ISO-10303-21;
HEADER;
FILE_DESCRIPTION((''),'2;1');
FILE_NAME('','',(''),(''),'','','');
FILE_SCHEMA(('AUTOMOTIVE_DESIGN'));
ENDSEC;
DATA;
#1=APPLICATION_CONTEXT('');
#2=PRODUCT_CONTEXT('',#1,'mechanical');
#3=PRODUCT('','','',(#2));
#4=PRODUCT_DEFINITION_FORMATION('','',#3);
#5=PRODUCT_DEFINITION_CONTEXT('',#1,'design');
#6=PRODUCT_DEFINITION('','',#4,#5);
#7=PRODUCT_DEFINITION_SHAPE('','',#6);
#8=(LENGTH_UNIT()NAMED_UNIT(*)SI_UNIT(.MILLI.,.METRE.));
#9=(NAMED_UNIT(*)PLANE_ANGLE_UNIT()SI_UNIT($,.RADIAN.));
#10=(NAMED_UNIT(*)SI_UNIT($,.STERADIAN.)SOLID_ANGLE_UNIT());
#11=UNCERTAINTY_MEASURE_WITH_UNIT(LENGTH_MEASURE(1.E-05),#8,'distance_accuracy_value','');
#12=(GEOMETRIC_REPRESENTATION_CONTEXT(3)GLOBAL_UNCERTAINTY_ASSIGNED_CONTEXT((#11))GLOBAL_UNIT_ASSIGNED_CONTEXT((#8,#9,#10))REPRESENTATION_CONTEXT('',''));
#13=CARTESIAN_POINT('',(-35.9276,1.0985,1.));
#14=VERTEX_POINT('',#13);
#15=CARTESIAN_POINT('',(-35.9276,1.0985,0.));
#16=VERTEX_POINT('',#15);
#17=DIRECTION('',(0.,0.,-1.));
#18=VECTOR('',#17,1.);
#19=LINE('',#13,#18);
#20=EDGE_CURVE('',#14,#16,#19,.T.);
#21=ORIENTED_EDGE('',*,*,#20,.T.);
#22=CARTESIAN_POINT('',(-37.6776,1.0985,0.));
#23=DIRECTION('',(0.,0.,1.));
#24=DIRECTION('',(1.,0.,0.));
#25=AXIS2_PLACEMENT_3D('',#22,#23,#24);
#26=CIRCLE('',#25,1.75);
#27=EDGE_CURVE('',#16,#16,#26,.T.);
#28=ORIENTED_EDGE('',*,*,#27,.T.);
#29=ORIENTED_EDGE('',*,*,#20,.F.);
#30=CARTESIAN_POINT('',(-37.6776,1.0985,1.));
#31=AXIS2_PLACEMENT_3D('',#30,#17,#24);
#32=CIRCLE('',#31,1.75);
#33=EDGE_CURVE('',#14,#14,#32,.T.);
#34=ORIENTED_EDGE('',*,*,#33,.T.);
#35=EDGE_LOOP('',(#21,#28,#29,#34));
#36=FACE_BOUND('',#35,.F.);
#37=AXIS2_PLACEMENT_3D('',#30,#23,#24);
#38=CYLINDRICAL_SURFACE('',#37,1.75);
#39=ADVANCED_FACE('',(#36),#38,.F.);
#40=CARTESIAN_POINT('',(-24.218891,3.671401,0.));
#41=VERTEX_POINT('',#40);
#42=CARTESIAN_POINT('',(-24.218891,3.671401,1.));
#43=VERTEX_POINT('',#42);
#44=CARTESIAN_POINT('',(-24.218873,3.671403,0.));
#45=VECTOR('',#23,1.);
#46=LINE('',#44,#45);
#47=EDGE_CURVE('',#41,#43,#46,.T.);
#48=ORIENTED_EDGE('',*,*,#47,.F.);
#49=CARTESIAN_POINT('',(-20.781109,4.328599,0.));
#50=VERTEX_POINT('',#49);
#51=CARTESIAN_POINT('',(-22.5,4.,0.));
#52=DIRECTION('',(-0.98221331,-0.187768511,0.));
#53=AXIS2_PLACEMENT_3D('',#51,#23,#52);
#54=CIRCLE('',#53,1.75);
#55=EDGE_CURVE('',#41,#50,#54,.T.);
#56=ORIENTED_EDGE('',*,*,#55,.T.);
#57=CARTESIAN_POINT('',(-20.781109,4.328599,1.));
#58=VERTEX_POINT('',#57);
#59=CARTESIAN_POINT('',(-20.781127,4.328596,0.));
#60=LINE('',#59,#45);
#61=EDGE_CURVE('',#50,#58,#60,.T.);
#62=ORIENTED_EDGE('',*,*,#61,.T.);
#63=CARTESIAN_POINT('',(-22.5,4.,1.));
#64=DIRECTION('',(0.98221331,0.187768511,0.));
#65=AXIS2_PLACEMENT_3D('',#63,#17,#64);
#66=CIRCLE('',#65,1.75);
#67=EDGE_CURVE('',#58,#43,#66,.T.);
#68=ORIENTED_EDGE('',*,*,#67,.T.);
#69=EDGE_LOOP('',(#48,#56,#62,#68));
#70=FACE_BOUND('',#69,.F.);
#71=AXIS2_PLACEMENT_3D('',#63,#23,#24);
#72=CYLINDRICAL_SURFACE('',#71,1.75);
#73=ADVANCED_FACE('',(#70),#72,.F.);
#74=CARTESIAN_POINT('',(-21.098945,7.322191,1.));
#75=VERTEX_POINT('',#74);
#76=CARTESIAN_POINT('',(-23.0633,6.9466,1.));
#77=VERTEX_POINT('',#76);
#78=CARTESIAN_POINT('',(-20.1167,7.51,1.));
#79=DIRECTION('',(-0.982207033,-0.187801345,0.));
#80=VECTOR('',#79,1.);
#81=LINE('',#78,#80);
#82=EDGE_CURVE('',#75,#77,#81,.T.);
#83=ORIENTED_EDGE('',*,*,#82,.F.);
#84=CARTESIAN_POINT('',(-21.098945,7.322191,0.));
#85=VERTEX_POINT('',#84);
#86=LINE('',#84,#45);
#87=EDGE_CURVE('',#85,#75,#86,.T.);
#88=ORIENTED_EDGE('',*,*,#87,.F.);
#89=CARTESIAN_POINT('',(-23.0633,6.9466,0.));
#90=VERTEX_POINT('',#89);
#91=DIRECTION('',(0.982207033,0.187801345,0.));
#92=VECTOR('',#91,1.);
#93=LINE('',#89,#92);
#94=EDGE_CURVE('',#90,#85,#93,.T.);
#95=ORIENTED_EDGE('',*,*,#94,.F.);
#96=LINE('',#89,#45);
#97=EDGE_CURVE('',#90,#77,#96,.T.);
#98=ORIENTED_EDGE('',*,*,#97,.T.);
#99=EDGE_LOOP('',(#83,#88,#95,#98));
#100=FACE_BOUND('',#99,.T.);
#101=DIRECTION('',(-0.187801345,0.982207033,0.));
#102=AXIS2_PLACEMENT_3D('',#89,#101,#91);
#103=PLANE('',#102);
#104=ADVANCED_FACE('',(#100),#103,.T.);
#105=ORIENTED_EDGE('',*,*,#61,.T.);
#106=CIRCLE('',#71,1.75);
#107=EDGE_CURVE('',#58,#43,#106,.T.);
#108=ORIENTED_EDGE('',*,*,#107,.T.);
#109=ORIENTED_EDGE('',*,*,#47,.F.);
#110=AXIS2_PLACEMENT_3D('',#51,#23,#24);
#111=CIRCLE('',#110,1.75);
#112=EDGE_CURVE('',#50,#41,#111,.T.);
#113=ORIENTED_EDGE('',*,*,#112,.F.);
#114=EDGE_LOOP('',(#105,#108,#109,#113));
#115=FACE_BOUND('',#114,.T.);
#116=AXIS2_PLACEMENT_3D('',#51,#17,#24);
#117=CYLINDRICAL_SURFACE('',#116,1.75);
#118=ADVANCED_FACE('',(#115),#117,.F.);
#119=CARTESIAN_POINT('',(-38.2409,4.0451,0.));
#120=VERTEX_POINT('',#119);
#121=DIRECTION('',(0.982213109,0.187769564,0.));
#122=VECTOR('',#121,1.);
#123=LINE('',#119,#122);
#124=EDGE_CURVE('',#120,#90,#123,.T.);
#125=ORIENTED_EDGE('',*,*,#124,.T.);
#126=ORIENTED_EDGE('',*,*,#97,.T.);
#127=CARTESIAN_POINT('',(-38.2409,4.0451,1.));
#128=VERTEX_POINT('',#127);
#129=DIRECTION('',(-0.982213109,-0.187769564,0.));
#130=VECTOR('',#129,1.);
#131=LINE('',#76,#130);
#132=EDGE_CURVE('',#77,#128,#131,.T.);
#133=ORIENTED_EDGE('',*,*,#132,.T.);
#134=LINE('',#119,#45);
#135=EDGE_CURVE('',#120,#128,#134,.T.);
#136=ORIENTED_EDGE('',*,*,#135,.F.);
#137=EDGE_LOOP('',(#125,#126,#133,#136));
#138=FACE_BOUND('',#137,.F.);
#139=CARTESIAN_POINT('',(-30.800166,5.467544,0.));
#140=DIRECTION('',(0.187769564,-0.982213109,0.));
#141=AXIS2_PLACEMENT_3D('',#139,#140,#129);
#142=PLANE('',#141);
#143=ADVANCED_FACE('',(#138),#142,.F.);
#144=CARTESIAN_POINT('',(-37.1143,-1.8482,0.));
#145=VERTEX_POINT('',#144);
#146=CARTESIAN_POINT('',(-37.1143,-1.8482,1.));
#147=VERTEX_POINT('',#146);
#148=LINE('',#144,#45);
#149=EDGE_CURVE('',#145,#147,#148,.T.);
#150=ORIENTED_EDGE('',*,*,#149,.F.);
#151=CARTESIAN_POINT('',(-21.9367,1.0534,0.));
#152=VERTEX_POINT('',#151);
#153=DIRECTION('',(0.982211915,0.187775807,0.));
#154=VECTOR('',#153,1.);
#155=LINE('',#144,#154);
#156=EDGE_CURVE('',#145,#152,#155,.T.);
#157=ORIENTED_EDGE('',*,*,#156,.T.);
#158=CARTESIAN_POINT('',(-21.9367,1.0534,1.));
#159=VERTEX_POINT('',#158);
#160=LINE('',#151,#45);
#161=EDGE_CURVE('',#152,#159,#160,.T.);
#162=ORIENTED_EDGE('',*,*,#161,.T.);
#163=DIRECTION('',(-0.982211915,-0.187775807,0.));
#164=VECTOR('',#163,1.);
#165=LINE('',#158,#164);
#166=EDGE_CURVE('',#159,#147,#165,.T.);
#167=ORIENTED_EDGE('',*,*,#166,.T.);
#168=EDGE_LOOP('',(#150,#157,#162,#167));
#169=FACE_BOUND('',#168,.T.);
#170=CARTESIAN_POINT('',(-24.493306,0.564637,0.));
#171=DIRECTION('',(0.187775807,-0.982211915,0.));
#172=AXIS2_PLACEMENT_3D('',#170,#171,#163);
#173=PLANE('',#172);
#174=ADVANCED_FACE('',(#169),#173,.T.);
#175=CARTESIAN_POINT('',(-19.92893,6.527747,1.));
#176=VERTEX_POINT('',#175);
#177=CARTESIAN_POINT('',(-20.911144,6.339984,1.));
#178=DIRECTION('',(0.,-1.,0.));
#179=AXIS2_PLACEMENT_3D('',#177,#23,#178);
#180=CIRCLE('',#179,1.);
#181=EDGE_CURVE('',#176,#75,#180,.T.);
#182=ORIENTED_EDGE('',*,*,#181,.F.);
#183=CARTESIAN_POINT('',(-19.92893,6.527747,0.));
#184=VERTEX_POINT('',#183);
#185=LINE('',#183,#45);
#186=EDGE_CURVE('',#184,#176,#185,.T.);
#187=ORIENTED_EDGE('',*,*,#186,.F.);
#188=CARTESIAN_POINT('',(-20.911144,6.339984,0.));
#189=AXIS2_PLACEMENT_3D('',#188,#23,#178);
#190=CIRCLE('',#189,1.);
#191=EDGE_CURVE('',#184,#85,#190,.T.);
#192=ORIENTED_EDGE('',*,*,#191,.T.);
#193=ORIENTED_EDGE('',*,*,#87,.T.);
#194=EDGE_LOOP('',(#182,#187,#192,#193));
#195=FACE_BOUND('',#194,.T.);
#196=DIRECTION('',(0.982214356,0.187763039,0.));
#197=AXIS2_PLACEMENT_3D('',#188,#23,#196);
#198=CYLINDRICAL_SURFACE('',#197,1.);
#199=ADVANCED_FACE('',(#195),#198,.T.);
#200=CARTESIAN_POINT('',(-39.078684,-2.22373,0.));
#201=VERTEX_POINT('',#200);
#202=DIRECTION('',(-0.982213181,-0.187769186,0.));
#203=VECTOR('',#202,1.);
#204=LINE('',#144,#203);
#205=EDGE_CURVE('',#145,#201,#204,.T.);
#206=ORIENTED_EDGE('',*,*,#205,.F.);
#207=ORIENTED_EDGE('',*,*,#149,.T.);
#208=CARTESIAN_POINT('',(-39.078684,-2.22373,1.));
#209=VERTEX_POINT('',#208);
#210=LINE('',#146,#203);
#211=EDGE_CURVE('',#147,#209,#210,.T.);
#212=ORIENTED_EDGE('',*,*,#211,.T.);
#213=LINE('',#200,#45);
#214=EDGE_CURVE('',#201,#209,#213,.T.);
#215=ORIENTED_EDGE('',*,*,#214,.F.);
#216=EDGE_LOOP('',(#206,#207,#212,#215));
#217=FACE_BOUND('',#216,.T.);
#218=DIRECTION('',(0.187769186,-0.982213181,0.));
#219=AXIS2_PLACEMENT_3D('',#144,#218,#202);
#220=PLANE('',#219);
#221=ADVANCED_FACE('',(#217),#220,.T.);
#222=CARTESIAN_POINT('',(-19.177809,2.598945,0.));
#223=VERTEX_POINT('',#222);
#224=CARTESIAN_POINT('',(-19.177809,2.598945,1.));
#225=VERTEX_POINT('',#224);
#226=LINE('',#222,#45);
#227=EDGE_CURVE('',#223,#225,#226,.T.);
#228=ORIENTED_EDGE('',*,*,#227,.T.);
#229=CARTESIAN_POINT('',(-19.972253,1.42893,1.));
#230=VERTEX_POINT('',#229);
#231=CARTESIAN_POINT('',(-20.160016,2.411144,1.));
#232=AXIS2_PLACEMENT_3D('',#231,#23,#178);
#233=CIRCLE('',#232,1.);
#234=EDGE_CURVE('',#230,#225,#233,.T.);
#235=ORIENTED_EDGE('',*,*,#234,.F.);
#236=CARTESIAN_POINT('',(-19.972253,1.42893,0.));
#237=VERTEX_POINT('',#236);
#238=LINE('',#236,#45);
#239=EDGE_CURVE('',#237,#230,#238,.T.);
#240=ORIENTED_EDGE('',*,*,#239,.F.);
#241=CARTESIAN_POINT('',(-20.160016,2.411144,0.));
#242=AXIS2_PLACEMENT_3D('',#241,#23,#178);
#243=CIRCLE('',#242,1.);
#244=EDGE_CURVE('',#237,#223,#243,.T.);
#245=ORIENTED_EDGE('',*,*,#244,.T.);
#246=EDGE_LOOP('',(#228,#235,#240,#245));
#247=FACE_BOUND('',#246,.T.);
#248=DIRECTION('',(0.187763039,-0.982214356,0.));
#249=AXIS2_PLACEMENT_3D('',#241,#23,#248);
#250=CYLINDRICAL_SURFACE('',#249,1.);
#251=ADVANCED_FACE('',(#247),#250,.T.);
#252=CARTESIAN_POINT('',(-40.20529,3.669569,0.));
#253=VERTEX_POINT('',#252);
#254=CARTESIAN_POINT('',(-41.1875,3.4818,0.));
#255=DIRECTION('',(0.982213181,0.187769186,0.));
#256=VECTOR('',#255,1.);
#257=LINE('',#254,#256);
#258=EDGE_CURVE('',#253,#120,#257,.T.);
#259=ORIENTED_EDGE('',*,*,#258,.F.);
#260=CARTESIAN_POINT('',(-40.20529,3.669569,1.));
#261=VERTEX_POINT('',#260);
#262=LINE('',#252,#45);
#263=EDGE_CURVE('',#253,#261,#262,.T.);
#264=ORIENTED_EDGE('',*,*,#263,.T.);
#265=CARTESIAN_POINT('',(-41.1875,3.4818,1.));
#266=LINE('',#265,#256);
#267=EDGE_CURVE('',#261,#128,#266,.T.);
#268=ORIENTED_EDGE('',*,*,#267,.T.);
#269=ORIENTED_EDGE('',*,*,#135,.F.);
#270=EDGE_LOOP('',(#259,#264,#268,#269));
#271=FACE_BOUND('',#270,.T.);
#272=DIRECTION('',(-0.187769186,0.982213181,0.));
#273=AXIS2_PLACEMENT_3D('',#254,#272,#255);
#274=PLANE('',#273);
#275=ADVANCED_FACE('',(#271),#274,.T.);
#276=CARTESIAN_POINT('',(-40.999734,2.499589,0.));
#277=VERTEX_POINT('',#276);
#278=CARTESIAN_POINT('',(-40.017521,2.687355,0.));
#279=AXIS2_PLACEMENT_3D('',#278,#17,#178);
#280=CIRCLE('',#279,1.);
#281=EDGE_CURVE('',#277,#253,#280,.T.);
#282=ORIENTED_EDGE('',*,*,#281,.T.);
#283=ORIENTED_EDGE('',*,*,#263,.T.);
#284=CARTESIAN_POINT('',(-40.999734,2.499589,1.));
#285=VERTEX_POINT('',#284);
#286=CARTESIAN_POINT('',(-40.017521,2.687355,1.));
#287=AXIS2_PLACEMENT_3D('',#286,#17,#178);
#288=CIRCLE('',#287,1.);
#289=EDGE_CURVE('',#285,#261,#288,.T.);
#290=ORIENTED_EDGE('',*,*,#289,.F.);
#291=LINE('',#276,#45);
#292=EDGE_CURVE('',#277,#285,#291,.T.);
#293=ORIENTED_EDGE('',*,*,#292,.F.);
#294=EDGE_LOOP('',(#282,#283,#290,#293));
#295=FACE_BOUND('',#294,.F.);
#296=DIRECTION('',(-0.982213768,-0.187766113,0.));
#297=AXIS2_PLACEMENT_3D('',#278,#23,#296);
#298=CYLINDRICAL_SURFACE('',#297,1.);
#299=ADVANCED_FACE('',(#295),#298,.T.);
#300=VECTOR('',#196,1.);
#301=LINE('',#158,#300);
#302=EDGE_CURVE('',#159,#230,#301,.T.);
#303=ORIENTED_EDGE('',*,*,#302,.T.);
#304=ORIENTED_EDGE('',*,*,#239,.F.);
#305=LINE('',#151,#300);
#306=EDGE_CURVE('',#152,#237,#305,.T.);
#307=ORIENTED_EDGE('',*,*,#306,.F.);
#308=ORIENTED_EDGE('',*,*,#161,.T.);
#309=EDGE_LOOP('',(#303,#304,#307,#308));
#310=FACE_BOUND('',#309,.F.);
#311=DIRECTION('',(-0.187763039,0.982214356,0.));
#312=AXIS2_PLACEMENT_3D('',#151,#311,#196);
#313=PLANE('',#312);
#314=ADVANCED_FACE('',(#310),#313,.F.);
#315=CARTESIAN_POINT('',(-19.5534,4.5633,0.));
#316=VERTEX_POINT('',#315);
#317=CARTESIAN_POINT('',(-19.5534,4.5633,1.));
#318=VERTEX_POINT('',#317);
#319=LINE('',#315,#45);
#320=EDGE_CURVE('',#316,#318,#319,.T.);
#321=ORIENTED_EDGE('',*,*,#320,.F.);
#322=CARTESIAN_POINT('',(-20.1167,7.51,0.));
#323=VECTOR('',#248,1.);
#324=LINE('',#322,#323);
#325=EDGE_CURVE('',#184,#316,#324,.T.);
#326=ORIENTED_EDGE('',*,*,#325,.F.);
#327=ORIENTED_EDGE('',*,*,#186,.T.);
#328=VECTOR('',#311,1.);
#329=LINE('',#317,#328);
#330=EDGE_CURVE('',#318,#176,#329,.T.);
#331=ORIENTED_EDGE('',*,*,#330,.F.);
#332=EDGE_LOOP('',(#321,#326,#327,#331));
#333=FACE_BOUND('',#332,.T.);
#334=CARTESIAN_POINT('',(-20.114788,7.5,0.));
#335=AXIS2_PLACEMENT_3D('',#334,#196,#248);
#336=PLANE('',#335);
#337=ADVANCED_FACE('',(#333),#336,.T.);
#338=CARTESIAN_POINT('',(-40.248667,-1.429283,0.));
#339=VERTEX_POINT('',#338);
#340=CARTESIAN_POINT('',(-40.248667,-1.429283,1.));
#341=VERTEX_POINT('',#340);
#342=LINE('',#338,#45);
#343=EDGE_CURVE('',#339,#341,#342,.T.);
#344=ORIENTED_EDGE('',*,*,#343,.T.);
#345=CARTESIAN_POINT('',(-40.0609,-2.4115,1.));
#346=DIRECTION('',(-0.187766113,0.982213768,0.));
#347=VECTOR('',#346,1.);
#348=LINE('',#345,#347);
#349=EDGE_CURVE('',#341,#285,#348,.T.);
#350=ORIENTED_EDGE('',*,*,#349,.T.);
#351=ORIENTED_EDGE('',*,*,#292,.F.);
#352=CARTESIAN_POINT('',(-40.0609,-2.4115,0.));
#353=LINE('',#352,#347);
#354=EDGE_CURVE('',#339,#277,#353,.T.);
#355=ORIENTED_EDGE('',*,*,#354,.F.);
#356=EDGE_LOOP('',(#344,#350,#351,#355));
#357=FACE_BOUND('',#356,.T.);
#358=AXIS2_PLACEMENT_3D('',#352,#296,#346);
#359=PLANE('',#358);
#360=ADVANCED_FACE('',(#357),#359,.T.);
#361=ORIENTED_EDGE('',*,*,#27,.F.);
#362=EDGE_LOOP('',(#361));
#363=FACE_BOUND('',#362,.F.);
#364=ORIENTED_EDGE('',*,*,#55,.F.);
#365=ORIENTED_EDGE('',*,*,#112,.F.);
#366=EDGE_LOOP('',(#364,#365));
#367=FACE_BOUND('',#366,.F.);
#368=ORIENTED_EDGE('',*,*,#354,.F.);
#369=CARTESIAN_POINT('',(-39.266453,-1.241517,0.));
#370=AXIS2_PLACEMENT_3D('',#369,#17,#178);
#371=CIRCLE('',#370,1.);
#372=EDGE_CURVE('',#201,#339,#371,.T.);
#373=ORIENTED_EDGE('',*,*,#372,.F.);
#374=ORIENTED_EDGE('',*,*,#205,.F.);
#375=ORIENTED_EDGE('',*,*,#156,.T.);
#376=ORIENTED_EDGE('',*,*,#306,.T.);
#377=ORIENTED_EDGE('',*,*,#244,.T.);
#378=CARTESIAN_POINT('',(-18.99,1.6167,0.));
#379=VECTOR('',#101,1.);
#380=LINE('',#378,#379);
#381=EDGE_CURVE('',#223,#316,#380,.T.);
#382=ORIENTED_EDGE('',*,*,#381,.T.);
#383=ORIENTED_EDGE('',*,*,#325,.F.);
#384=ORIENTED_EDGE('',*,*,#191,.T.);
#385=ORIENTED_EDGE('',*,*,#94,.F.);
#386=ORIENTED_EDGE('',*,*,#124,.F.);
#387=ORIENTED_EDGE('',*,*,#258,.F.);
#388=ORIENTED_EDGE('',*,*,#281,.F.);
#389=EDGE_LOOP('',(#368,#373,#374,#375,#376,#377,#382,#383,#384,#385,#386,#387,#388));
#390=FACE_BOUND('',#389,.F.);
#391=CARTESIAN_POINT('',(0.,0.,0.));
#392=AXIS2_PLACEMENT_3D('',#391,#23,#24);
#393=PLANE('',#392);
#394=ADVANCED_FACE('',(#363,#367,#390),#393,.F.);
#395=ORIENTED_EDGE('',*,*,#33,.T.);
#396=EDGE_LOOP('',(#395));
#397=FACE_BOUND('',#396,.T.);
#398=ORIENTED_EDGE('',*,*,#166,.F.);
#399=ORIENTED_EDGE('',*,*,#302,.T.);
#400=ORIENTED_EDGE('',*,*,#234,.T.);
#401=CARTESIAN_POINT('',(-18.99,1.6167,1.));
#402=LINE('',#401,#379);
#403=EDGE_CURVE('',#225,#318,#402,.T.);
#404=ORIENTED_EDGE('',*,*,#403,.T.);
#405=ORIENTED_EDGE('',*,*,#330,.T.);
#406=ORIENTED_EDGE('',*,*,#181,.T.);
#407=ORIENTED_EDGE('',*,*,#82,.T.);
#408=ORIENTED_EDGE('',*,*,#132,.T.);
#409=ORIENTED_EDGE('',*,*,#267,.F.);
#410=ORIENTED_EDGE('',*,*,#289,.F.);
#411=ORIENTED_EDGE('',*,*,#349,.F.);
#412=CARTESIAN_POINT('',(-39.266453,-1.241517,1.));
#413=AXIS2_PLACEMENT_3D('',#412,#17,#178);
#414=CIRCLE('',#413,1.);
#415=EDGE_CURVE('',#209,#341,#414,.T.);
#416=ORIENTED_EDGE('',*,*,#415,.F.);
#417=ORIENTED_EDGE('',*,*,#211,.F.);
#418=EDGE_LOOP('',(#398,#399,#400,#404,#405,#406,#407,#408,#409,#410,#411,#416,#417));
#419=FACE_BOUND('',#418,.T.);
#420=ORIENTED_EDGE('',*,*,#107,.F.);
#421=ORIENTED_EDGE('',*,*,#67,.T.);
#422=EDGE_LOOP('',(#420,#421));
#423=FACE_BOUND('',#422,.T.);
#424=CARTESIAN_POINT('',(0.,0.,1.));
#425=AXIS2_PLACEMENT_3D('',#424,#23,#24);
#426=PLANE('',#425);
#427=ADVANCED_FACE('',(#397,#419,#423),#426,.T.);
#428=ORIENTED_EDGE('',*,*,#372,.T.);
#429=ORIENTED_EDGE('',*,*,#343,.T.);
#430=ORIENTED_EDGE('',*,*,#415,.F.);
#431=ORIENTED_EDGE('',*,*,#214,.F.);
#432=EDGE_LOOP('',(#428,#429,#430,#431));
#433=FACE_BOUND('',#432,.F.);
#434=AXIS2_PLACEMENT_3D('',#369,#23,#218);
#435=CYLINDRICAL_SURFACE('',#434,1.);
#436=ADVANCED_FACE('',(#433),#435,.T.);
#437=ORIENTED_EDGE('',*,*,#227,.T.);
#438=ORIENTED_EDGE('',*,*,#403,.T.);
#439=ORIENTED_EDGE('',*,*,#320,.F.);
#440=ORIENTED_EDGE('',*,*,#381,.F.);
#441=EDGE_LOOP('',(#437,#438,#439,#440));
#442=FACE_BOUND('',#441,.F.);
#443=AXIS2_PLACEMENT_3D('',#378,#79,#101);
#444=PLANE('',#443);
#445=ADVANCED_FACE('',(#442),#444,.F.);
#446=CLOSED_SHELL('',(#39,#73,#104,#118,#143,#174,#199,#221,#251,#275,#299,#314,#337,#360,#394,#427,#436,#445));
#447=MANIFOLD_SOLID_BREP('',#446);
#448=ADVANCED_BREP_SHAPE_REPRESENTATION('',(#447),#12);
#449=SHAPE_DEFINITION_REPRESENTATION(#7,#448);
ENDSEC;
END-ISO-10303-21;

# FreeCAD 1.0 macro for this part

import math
import FreeCAD as App
import Part
import Sketcher
from FreeCAD import Vector
Q = App.Units.Quantity


def edges_at(feature, points):
    """Names of the edges that pass closest to the given points."""
    edges = feature.Shape.Edges
    near = lambda p: min(range(len(edges)), key=lambda i: edges[i].distToShape(Part.Vertex(*p))[0])
    return sorted({f"Edge{near(p) + 1}" for p in points})

doc = App.newDocument("Part")
body = doc.addObject("PartDesign::Body", "Body")

sketch1 = doc.addObject("Sketcher::SketchObject", "Sketch")
body.addObject(sketch1)
sketch1.AttachmentSupport = (doc.XY_Plane, [""])
sketch1.MapMode = "FlatFace"
sketch1.addGeometry(Part.LineSegment(Vector(-37.1, -1.8, 0), Vector(-21.9, 1.1, 0)), False)
sketch1.addGeometry(Part.LineSegment(Vector(-21.9, 1.1, 0), Vector(-19, 1.6, 0)), False)
sketch1.addGeometry(Part.LineSegment(Vector(-19, 1.6, 0), Vector(-19.6, 4.6, 0)), False)
sketch1.addGeometry(Part.LineSegment(Vector(-19.6, 4.6, 0), Vector(-20.1, 7.5, 0)), False)
sketch1.addGeometry(Part.LineSegment(Vector(-20.1, 7.5, 0), Vector(-23.1, 6.9, 0)), False)
sketch1.addGeometry(Part.LineSegment(Vector(-23.1, 6.9, 0), Vector(-38.2, 4, 0)), False)
sketch1.addGeometry(Part.LineSegment(Vector(-38.2, 4, 0), Vector(-41.2, 3.5, 0)), False)
sketch1.addGeometry(Part.LineSegment(Vector(-41.2, 3.5, 0), Vector(-40.1, -2.4, 0)), False)
sketch1.addGeometry(Part.LineSegment(Vector(-40.1, -2.4, 0), Vector(-37.1, -1.8, 0)), False)
sketch1.addGeometry(Part.ArcOfCircle(Part.Circle(Vector(-22.5, 4, 0), Vector(0, 0, 1), 1.8), math.radians(11), math.radians(191)), False)
sketch1.addGeometry(Part.LineSegment(Vector(-20.8, 4.3, 0), Vector(-22.5, 4, 0)), False)
sketch1.addGeometry(Part.LineSegment(Vector(-22.5, 4, 0), Vector(-24.2, 3.7, 0)), False)
sketch1.addConstraint(Sketcher.Constraint("Coincident", 0, 2, 1, 1))
sketch1.addConstraint(Sketcher.Constraint("Coincident", 1, 2, 2, 1))
sketch1.addConstraint(Sketcher.Constraint("Coincident", 2, 2, 3, 1))
sketch1.addConstraint(Sketcher.Constraint("Coincident", 3, 2, 4, 1))
sketch1.addConstraint(Sketcher.Constraint("Coincident", 4, 2, 5, 1))
sketch1.addConstraint(Sketcher.Constraint("Coincident", 5, 2, 6, 1))
sketch1.addConstraint(Sketcher.Constraint("Coincident", 6, 2, 7, 1))
sketch1.addConstraint(Sketcher.Constraint("Coincident", 7, 2, 8, 1))
sketch1.addConstraint(Sketcher.Constraint("Coincident", 8, 2, 0, 1))
sketch1.addConstraint(Sketcher.Constraint("Coincident", 9, 1, 10, 1))
sketch1.addConstraint(Sketcher.Constraint("Coincident", 10, 2, 11, 1))
sketch1.addConstraint(Sketcher.Constraint("Coincident", 11, 2, 9, 2))
sketch1.addConstraint(Sketcher.Constraint("Coincident", 10, 2, 9, 3))
sketch1.addConstraint(Sketcher.Constraint("Parallel", 0, 1))
sketch1.addConstraint(Sketcher.Constraint("Perpendicular", 1, 2))
sketch1.addConstraint(Sketcher.Constraint("Parallel", 2, 3))
sketch1.addConstraint(Sketcher.Constraint("Perpendicular", 3, 4))
sketch1.addConstraint(Sketcher.Constraint("Parallel", 4, 5))
sketch1.addConstraint(Sketcher.Constraint("Parallel", 5, 6))
sketch1.addConstraint(Sketcher.Constraint("Perpendicular", 6, 7))
sketch1.addConstraint(Sketcher.Constraint("Perpendicular", 7, 8))
sketch1.addConstraint(Sketcher.Constraint("Parallel", 8, 10))
sketch1.addConstraint(Sketcher.Constraint("Parallel", 10, 11))
sketch1.addConstraint(Sketcher.Constraint("Equal", 1, 2))
sketch1.addConstraint(Sketcher.Constraint("Equal", 2, 3))
sketch1.addConstraint(Sketcher.Constraint("Equal", 3, 4))
sketch1.addConstraint(Sketcher.Constraint("Equal", 0, 5))
sketch1.addConstraint(Sketcher.Constraint("Equal", 4, 6))
sketch1.addConstraint(Sketcher.Constraint("Radius", 9, Q("1.75 mm")))
sketch1.addConstraint(Sketcher.Constraint("Distance", 1, Q("3 mm")))
sketch1.addConstraint(Sketcher.Constraint("DistanceY", -1, 1, 9, 3, Q("4 mm")))
sketch1.addConstraint(Sketcher.Constraint("DistanceX", 9, 3, -1, 1, Q("22.5 mm")))
sketch1.addConstraint(Sketcher.Constraint("DistanceX", 1, 2, -1, 1, Q("18.99 mm")))
sketch1.addConstraint(Sketcher.Constraint("DistanceY", -1, 1, 3, 2, Q("7.51 mm")))
sketch1.addConstraint(Sketcher.Constraint("DistanceY", 0, 2, 2, 2, Q("3.51 mm")))
sketch1.addConstraint(Sketcher.Constraint("DistanceX", 5, 2, -1, 1, Q("38.241 mm")))
pad1 = doc.addObject("PartDesign::Pad", "Pad")
body.addObject(pad1)
pad1.Profile = sketch1
pad1.Length = 1

sketch2 = doc.addObject("Sketcher::SketchObject", "Sketch001")
body.addObject(sketch2)
sketch2.AttachmentSupport = (doc.XY_Plane, [""])
sketch2.MapMode = "FlatFace"
sketch2.AttachmentOffset = App.Placement(Vector(0, 0, 1), App.Rotation())
sketch2.addGeometry(Part.Circle(Vector(-22.5, 4, 0), Vector(0, 0, 1), 1.8), False)
sketch2.addGeometry(Part.Circle(Vector(-37.7, 1.1, 0), Vector(0, 0, 1), 1.8), False)
sketch2.addConstraint(Sketcher.Constraint("Equal", 0, 1))
sketch2.addConstraint(Sketcher.Constraint("Diameter", 0, Q("3.5 mm")))
sketch2.addConstraint(Sketcher.Constraint("DistanceY", -1, 1, 0, 3, Q("4 mm")))
sketch2.addConstraint(Sketcher.Constraint("DistanceX", 0, 3, -1, 1, Q("22.5 mm")))
sketch2.addConstraint(Sketcher.Constraint("DistanceX", 1, 3, -1, 1, Q("37.6776 mm")))
sketch2.addConstraint(Sketcher.Constraint("DistanceY", -1, 1, 1, 3, Q("1.0985 mm")))
pocket1 = doc.addObject("PartDesign::Pocket", "Pocket")
body.addObject(pocket1)
pocket1.Profile = sketch2
pocket1.Length = 1
doc.recompute()

fillet = doc.addObject("PartDesign::Fillet", "Fillet")
body.addObject(fillet)
fillet.Base = (pocket1, edges_at(pocket1, [
    (-40.061, -2.412, 0.5),
    (-41.188, 3.482, 0.5),
    (-18.99, 1.617, 0.5),
    (-20.117, 7.51, 0.5),
]))
fillet.Radius = 1

doc.recompute()
